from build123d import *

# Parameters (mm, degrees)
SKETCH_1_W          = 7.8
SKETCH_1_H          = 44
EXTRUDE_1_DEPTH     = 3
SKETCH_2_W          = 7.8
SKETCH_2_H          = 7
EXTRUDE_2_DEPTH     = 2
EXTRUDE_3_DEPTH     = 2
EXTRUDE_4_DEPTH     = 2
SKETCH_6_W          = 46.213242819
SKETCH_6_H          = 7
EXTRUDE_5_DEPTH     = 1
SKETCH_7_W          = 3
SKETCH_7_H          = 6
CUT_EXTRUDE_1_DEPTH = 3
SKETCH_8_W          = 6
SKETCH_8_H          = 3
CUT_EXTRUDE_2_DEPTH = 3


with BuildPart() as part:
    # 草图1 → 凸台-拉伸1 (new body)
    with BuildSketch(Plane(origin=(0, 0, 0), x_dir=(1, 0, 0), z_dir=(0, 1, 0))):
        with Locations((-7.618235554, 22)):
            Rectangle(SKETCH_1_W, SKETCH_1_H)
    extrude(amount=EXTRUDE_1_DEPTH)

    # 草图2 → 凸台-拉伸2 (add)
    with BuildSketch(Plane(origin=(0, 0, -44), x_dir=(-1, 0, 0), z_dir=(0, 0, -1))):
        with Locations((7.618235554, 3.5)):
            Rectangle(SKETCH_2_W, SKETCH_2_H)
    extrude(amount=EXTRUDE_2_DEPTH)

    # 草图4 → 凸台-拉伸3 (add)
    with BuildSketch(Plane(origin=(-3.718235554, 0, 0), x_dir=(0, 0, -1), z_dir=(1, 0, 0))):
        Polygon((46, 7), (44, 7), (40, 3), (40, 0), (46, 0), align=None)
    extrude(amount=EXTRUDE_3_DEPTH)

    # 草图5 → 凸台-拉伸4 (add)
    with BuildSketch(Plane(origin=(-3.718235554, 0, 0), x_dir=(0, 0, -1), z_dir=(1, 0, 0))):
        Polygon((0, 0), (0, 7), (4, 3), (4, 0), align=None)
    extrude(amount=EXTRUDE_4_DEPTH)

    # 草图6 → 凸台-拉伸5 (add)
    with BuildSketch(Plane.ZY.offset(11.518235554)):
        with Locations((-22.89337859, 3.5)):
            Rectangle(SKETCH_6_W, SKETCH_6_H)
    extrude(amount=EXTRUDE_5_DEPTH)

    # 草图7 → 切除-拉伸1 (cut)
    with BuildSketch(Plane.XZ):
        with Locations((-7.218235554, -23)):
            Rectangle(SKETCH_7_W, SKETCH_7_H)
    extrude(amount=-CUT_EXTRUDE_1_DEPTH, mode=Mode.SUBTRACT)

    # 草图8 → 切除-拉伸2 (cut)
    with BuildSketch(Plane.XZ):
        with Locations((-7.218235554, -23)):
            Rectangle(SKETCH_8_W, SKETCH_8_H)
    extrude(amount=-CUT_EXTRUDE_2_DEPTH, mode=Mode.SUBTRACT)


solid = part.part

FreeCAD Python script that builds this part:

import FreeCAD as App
import Part
import Sketcher

doc = App.newDocument("Part")
body = doc.addObject("PartDesign::Body", "Body")

# Sketch on XZ plane
sketch1 = doc.addObject("Sketcher::SketchObject", "Sketch")
body.addObject(sketch1)
sketch1.AttachmentSupport = (doc.XZ_Plane, [""])
sketch1.MapMode = "FlatFace"
sketch1.addGeometry(Part.LineSegment(App.Vector(-12, -44, 0), App.Vector(-12, 0, 0)), False)
sketch1.addGeometry(Part.LineSegment(App.Vector(-12, 0, 0), App.Vector(-4, 0, 0)), False)
sketch1.addGeometry(Part.LineSegment(App.Vector(-4, 0, 0), App.Vector(-4, -44, 0)), False)
sketch1.addGeometry(Part.LineSegment(App.Vector(-4, -44, 0), App.Vector(-12, -44, 0)), False)
sketch1.addConstraint(Sketcher.Constraint("Coincident", 0, 2, 1, 1))
sketch1.addConstraint(Sketcher.Constraint("Coincident", 1, 2, 2, 1))
sketch1.addConstraint(Sketcher.Constraint("Coincident", 2, 2, 3, 1))
sketch1.addConstraint(Sketcher.Constraint("Coincident", 3, 2, 0, 1))
sketch1.addConstraint(Sketcher.Constraint("Vertical", 0))
sketch1.addConstraint(Sketcher.Constraint("Horizontal", 1))
sketch1.addConstraint(Sketcher.Constraint("Vertical", 2))
sketch1.addConstraint(Sketcher.Constraint("Horizontal", 3))
sketch1.addConstraint(Sketcher.Constraint("PointOnObject", 0, 2, -1))
sketch1.addConstraint(Sketcher.Constraint("DistanceY", 0, 1, 0, 2, 44.0))
sketch1.addConstraint(Sketcher.Constraint("DistanceX", 1, 1, 1, 2, 7.8))
sketch1.addConstraint(Sketcher.Constraint("DistanceX", 0, 2, -1, 1, 11.518236))
pad1 = doc.addObject("PartDesign::Pad", "Pad")
body.addObject(pad1)
pad1.Profile = sketch1
pad1.Length = 3
pad1.Reversed = True

# Sketch on XY plane
sketch2 = doc.addObject("Sketcher::SketchObject", "Sketch001")
body.addObject(sketch2)
sketch2.AttachmentSupport = (doc.XY_Plane, [""])
sketch2.MapMode = "FlatFace"
sketch2.AttachmentOffset = App.Placement(App.Vector(0, 0, -44), App.Rotation())
sketch2.addGeometry(Part.LineSegment(App.Vector(-4, 7, 0), App.Vector(-4, 0, 0)), False)
sketch2.addGeometry(Part.LineSegment(App.Vector(-4, 0, 0), App.Vector(-12, 0, 0)), False)
sketch2.addGeometry(Part.LineSegment(App.Vector(-12, 0, 0), App.Vector(-12, 7, 0)), False)
sketch2.addGeometry(Part.LineSegment(App.Vector(-12, 7, 0), App.Vector(-4, 7, 0)), False)
sketch2.addConstraint(Sketcher.Constraint("Coincident", 0, 2, 1, 1))
sketch2.addConstraint(Sketcher.Constraint("Coincident", 1, 2, 2, 1))
sketch2.addConstraint(Sketcher.Constraint("Coincident", 2, 2, 3, 1))
sketch2.addConstraint(Sketcher.Constraint("Coincident", 3, 2, 0, 1))
sketch2.addConstraint(Sketcher.Constraint("Vertical", 0))
sketch2.addConstraint(Sketcher.Constraint("Horizontal", 1))
sketch2.addConstraint(Sketcher.Constraint("Vertical", 2))
sketch2.addConstraint(Sketcher.Constraint("Horizontal", 3))
sketch2.addConstraint(Sketcher.Constraint("PointOnObject", 0, 2, -1))
sketch2.addConstraint(Sketcher.Constraint("DistanceY", 0, 2, 0, 1, 7.0))
sketch2.addConstraint(Sketcher.Constraint("DistanceX", 1, 2, 1, 1, 7.8))
sketch2.addConstraint(Sketcher.Constraint("DistanceX", 0, 2, -1, 1, 3.718236))
pad2 = doc.addObject("PartDesign::Pad", "Pad001")
body.addObject(pad2)
pad2.Profile = sketch2
pad2.Length = 2
pad2.Reversed = True

# Sketch on YZ plane
sketch3 = doc.addObject("Sketcher::SketchObject", "Sketch002")
body.addObject(sketch3)
sketch3.AttachmentSupport = (doc.YZ_Plane, [""])
sketch3.MapMode = "FlatFace"
sketch3.AttachmentOffset = App.Placement(App.Vector(0, 0, -3.718236), App.Rotation())
sketch3.addGeometry(Part.LineSegment(App.Vector(7, -46, 0), App.Vector(7, -44, 0)), False)
sketch3.addGeometry(Part.LineSegment(App.Vector(7, -44, 0), App.Vector(3, -40, 0)), False)
sketch3.addGeometry(Part.LineSegment(App.Vector(3, -40, 0), App.Vector(0, -40, 0)), False)
sketch3.addGeometry(Part.LineSegment(App.Vector(0, -40, 0), App.Vector(0, -46, 0)), False)
sketch3.addGeometry(Part.LineSegment(App.Vector(0, -46, 0), App.Vector(7, -46, 0)), False)
sketch3.addConstraint(Sketcher.Constraint("Coincident", 0, 2, 1, 1))
sketch3.addConstraint(Sketcher.Constraint("Coincident", 1, 2, 2, 1))
sketch3.addConstraint(Sketcher.Constraint("Coincident", 2, 2, 3, 1))
sketch3.addConstraint(Sketcher.Constraint("Coincident", 3, 2, 4, 1))
sketch3.addConstraint(Sketcher.Constraint("Coincident", 4, 2, 0, 1))
sketch3.addConstraint(Sketcher.Constraint("Vertical", 0))
sketch3.addConstraint(Sketcher.Constraint("Horizontal", 2))
sketch3.addConstraint(Sketcher.Constraint("Vertical", 3))
sketch3.addConstraint(Sketcher.Constraint("Horizontal", 4))
sketch3.addConstraint(Sketcher.Constraint("PointOnObject", 2, 2, -2))
sketch3.addConstraint(Sketcher.Constraint("DistanceX", 2, 2, 2, 1, 3.0))
sketch3.addConstraint(Sketcher.Constraint("DistanceX", 4, 1, 4, 2, 7.0))
sketch3.addConstraint(Sketcher.Constraint("DistanceY", 0, 1, 0, 2, 2.0))
sketch3.addConstraint(Sketcher.Constraint("DistanceY", 3, 2, 3, 1, 6.0))
sketch3.addConstraint(Sketcher.Constraint("DistanceY", 0, 2, -1, 1, 44.0))
pad3 = doc.addObject("PartDesign::Pad", "Pad002")
body.addObject(pad3)
pad3.Profile = sketch3
pad3.Length = 2

# Sketch on YZ plane
sketch4 = doc.addObject("Sketcher::SketchObject", "Sketch003")
body.addObject(sketch4)
sketch4.AttachmentSupport = (doc.YZ_Plane, [""])
sketch4.MapMode = "FlatFace"
sketch4.AttachmentOffset = App.Placement(App.Vector(0, 0, -3.718236), App.Rotation())
sketch4.addGeometry(Part.LineSegment(App.Vector(7, 0, 0), App.Vector(0, 0, 0)), False)
sketch4.addGeometry(Part.LineSegment(App.Vector(0, 0, 0), App.Vector(0, -4, 0)), False)
sketch4.addGeometry(Part.LineSegment(App.Vector(0, -4, 0), App.Vector(3, -4, 0)), False)
sketch4.addGeometry(Part.LineSegment(App.Vector(3, -4, 0), App.Vector(7, 0, 0)), False)
sketch4.addConstraint(Sketcher.Constraint("Coincident", 0, 2, 1, 1))
sketch4.addConstraint(Sketcher.Constraint("Coincident", 1, 2, 2, 1))
sketch4.addConstraint(Sketcher.Constraint("Coincident", 2, 2, 3, 1))
sketch4.addConstraint(Sketcher.Constraint("Coincident", 3, 2, 0, 1))
sketch4.addConstraint(Sketcher.Constraint("Horizontal", 0))
sketch4.addConstraint(Sketcher.Constraint("Vertical", 1))
sketch4.addConstraint(Sketcher.Constraint("Horizontal", 2))
sketch4.addConstraint(Sketcher.Constraint("Coincident", 0, 2, -1, 1))
sketch4.addConstraint(Sketcher.Constraint("DistanceX", 0, 2, 0, 1, 7.0))
sketch4.addConstraint(Sketcher.Constraint("DistanceX", 2, 1, 2, 2, 3.0))
sketch4.addConstraint(Sketcher.Constraint("DistanceY", 1, 2, 1, 1, 4.0))
pad4 = doc.addObject("PartDesign::Pad", "Pad003")
body.addObject(pad4)
pad4.Profile = sketch4
pad4.Length = 2

# Sketch on YZ plane
sketch5 = doc.addObject("Sketcher::SketchObject", "Sketch004")
body.addObject(sketch5)
sketch5.AttachmentSupport = (doc.YZ_Plane, [""])
sketch5.MapMode = "FlatFace"
sketch5.AttachmentOffset = App.Placement(App.Vector(0, 0, -11.518236), App.Rotation())
sketch5.addGeometry(Part.LineSegment(App.Vector(7, -46, 0), App.Vector(0, -46, 0)), False)
sketch5.addGeometry(Part.LineSegment(App.Vector(0, -46, 0), App.Vector(0, 0, 0)), False)
sketch5.addGeometry(Part.LineSegment(App.Vector(0, 0, 0), App.Vector(7, 0, 0)), False)
sketch5.addGeometry(Part.LineSegment(App.Vector(7, 0, 0), App.Vector(7, -46, 0)), False)
sketch5.addConstraint(Sketcher.Constraint("Coincident", 0, 2, 1, 1))
sketch5.addConstraint(Sketcher.Constraint("Coincident", 1, 2, 2, 1))
sketch5.addConstraint(Sketcher.Constraint("Coincident", 2, 2, 3, 1))
sketch5.addConstraint(Sketcher.Constraint("Coincident", 3, 2, 0, 1))
sketch5.addConstraint(Sketcher.Constraint("Horizontal", 0))
sketch5.addConstraint(Sketcher.Constraint("Vertical", 1))
sketch5.addConstraint(Sketcher.Constraint("Horizontal", 2))
sketch5.addConstraint(Sketcher.Constraint("Vertical", 3))
sketch5.addConstraint(Sketcher.Constraint("PointOnObject", 0, 2, -2))
sketch5.addConstraint(Sketcher.Constraint("DistanceX", 0, 2, 0, 1, 7.0))
sketch5.addConstraint(Sketcher.Constraint("DistanceY", 0, 2, -1, 1, 46.0))
sketch5.addConstraint(Sketcher.Constraint("DistanceY", 1, 1, 1, 2, 46.213243))
pad5 = doc.addObject("PartDesign::Pad", "Pad004")
body.addObject(pad5)
pad5.Profile = sketch5
pad5.Length = 1
pad5.Reversed = True

# Sketch on XZ plane
sketch6 = doc.addObject("Sketcher::SketchObject", "Sketch005")
body.addObject(sketch6)
sketch6.AttachmentSupport = (doc.XZ_Plane, [""])
sketch6.MapMode = "FlatFace"
sketch6.addGeometry(Part.LineSegment(App.Vector(-8.7, -20, 0), App.Vector(-8.7, -26, 0)), False)
sketch6.addGeometry(Part.LineSegment(App.Vector(-8.7, -26, 0), App.Vector(-5.7, -26, 0)), False)
sketch6.addGeometry(Part.LineSegment(App.Vector(-5.7, -26, 0), App.Vector(-5.7, -20, 0)), False)
sketch6.addGeometry(Part.LineSegment(App.Vector(-5.7, -20, 0), App.Vector(-8.7, -20, 0)), False)
sketch6.addConstraint(Sketcher.Constraint("Coincident", 0, 2, 1, 1))
sketch6.addConstraint(Sketcher.Constraint("Coincident", 1, 2, 2, 1))
sketch6.addConstraint(Sketcher.Constraint("Coincident", 2, 2, 3, 1))
sketch6.addConstraint(Sketcher.Constraint("Coincident", 3, 2, 0, 1))
sketch6.addConstraint(Sketcher.Constraint("Vertical", 0))
sketch6.addConstraint(Sketcher.Constraint("Horizontal", 1))
sketch6.addConstraint(Sketcher.Constraint("Vertical", 2))
sketch6.addConstraint(Sketcher.Constraint("Horizontal", 3))
sketch6.addConstraint(Sketcher.Constraint("DistanceX", 1, 1, 1, 2, 3.0))
sketch6.addConstraint(Sketcher.Constraint("DistanceY", 0, 2, 0, 1, 6.0))
sketch6.addConstraint(Sketcher.Constraint("DistanceY", 0, 2, -1, 1, 26.0))
sketch6.addConstraint(Sketcher.Constraint("DistanceX", 0, 2, -1, 1, 8.718236))
pocket1 = doc.addObject("PartDesign::Pocket", "Pocket")
body.addObject(pocket1)
pocket1.Profile = sketch6
pocket1.Length = 3

# Sketch on XZ plane
sketch7 = doc.addObject("Sketcher::SketchObject", "Sketch006")
body.addObject(sketch7)
sketch7.AttachmentSupport = (doc.XZ_Plane, [""])
sketch7.MapMode = "FlatFace"
sketch7.addGeometry(Part.LineSegment(App.Vector(-10.2, -21.5, 0), App.Vector(-10.2, -24.5, 0)), False)
sketch7.addGeometry(Part.LineSegment(App.Vector(-10.2, -24.5, 0), App.Vector(-4.2, -24.5, 0)), False)
sketch7.addGeometry(Part.LineSegment(App.Vector(-4.2, -24.5, 0), App.Vector(-4.2, -21.5, 0)), False)
sketch7.addGeometry(Part.LineSegment(App.Vector(-4.2, -21.5, 0), App.Vector(-10.2, -21.5, 0)), False)
sketch7.addConstraint(Sketcher.Constraint("Coincident", 0, 2, 1, 1))
sketch7.addConstraint(Sketcher.Constraint("Coincident", 1, 2, 2, 1))
sketch7.addConstraint(Sketcher.Constraint("Coincident", 2, 2, 3, 1))
sketch7.addConstraint(Sketcher.Constraint("Coincident", 3, 2, 0, 1))
sketch7.addConstraint(Sketcher.Constraint("Vertical", 0))
sketch7.addConstraint(Sketcher.Constraint("Horizontal", 1))
sketch7.addConstraint(Sketcher.Constraint("Vertical", 2))
sketch7.addConstraint(Sketcher.Constraint("Horizontal", 3))
sketch7.addConstraint(Sketcher.Constraint("DistanceX", 1, 1, 1, 2, 6.0))
sketch7.addConstraint(Sketcher.Constraint("DistanceY", 0, 2, 0, 1, 3.0))
sketch7.addConstraint(Sketcher.Constraint("DistanceY", 0, 2, -1, 1, 24.5))
sketch7.addConstraint(Sketcher.Constraint("DistanceX", 0, 2, -1, 1, 10.218236))
pocket2 = doc.addObject("PartDesign::Pocket", "Pocket001")
body.addObject(pocket2)
pocket2.Profile = sketch7
pocket2.Length = 3

doc.recompute()
